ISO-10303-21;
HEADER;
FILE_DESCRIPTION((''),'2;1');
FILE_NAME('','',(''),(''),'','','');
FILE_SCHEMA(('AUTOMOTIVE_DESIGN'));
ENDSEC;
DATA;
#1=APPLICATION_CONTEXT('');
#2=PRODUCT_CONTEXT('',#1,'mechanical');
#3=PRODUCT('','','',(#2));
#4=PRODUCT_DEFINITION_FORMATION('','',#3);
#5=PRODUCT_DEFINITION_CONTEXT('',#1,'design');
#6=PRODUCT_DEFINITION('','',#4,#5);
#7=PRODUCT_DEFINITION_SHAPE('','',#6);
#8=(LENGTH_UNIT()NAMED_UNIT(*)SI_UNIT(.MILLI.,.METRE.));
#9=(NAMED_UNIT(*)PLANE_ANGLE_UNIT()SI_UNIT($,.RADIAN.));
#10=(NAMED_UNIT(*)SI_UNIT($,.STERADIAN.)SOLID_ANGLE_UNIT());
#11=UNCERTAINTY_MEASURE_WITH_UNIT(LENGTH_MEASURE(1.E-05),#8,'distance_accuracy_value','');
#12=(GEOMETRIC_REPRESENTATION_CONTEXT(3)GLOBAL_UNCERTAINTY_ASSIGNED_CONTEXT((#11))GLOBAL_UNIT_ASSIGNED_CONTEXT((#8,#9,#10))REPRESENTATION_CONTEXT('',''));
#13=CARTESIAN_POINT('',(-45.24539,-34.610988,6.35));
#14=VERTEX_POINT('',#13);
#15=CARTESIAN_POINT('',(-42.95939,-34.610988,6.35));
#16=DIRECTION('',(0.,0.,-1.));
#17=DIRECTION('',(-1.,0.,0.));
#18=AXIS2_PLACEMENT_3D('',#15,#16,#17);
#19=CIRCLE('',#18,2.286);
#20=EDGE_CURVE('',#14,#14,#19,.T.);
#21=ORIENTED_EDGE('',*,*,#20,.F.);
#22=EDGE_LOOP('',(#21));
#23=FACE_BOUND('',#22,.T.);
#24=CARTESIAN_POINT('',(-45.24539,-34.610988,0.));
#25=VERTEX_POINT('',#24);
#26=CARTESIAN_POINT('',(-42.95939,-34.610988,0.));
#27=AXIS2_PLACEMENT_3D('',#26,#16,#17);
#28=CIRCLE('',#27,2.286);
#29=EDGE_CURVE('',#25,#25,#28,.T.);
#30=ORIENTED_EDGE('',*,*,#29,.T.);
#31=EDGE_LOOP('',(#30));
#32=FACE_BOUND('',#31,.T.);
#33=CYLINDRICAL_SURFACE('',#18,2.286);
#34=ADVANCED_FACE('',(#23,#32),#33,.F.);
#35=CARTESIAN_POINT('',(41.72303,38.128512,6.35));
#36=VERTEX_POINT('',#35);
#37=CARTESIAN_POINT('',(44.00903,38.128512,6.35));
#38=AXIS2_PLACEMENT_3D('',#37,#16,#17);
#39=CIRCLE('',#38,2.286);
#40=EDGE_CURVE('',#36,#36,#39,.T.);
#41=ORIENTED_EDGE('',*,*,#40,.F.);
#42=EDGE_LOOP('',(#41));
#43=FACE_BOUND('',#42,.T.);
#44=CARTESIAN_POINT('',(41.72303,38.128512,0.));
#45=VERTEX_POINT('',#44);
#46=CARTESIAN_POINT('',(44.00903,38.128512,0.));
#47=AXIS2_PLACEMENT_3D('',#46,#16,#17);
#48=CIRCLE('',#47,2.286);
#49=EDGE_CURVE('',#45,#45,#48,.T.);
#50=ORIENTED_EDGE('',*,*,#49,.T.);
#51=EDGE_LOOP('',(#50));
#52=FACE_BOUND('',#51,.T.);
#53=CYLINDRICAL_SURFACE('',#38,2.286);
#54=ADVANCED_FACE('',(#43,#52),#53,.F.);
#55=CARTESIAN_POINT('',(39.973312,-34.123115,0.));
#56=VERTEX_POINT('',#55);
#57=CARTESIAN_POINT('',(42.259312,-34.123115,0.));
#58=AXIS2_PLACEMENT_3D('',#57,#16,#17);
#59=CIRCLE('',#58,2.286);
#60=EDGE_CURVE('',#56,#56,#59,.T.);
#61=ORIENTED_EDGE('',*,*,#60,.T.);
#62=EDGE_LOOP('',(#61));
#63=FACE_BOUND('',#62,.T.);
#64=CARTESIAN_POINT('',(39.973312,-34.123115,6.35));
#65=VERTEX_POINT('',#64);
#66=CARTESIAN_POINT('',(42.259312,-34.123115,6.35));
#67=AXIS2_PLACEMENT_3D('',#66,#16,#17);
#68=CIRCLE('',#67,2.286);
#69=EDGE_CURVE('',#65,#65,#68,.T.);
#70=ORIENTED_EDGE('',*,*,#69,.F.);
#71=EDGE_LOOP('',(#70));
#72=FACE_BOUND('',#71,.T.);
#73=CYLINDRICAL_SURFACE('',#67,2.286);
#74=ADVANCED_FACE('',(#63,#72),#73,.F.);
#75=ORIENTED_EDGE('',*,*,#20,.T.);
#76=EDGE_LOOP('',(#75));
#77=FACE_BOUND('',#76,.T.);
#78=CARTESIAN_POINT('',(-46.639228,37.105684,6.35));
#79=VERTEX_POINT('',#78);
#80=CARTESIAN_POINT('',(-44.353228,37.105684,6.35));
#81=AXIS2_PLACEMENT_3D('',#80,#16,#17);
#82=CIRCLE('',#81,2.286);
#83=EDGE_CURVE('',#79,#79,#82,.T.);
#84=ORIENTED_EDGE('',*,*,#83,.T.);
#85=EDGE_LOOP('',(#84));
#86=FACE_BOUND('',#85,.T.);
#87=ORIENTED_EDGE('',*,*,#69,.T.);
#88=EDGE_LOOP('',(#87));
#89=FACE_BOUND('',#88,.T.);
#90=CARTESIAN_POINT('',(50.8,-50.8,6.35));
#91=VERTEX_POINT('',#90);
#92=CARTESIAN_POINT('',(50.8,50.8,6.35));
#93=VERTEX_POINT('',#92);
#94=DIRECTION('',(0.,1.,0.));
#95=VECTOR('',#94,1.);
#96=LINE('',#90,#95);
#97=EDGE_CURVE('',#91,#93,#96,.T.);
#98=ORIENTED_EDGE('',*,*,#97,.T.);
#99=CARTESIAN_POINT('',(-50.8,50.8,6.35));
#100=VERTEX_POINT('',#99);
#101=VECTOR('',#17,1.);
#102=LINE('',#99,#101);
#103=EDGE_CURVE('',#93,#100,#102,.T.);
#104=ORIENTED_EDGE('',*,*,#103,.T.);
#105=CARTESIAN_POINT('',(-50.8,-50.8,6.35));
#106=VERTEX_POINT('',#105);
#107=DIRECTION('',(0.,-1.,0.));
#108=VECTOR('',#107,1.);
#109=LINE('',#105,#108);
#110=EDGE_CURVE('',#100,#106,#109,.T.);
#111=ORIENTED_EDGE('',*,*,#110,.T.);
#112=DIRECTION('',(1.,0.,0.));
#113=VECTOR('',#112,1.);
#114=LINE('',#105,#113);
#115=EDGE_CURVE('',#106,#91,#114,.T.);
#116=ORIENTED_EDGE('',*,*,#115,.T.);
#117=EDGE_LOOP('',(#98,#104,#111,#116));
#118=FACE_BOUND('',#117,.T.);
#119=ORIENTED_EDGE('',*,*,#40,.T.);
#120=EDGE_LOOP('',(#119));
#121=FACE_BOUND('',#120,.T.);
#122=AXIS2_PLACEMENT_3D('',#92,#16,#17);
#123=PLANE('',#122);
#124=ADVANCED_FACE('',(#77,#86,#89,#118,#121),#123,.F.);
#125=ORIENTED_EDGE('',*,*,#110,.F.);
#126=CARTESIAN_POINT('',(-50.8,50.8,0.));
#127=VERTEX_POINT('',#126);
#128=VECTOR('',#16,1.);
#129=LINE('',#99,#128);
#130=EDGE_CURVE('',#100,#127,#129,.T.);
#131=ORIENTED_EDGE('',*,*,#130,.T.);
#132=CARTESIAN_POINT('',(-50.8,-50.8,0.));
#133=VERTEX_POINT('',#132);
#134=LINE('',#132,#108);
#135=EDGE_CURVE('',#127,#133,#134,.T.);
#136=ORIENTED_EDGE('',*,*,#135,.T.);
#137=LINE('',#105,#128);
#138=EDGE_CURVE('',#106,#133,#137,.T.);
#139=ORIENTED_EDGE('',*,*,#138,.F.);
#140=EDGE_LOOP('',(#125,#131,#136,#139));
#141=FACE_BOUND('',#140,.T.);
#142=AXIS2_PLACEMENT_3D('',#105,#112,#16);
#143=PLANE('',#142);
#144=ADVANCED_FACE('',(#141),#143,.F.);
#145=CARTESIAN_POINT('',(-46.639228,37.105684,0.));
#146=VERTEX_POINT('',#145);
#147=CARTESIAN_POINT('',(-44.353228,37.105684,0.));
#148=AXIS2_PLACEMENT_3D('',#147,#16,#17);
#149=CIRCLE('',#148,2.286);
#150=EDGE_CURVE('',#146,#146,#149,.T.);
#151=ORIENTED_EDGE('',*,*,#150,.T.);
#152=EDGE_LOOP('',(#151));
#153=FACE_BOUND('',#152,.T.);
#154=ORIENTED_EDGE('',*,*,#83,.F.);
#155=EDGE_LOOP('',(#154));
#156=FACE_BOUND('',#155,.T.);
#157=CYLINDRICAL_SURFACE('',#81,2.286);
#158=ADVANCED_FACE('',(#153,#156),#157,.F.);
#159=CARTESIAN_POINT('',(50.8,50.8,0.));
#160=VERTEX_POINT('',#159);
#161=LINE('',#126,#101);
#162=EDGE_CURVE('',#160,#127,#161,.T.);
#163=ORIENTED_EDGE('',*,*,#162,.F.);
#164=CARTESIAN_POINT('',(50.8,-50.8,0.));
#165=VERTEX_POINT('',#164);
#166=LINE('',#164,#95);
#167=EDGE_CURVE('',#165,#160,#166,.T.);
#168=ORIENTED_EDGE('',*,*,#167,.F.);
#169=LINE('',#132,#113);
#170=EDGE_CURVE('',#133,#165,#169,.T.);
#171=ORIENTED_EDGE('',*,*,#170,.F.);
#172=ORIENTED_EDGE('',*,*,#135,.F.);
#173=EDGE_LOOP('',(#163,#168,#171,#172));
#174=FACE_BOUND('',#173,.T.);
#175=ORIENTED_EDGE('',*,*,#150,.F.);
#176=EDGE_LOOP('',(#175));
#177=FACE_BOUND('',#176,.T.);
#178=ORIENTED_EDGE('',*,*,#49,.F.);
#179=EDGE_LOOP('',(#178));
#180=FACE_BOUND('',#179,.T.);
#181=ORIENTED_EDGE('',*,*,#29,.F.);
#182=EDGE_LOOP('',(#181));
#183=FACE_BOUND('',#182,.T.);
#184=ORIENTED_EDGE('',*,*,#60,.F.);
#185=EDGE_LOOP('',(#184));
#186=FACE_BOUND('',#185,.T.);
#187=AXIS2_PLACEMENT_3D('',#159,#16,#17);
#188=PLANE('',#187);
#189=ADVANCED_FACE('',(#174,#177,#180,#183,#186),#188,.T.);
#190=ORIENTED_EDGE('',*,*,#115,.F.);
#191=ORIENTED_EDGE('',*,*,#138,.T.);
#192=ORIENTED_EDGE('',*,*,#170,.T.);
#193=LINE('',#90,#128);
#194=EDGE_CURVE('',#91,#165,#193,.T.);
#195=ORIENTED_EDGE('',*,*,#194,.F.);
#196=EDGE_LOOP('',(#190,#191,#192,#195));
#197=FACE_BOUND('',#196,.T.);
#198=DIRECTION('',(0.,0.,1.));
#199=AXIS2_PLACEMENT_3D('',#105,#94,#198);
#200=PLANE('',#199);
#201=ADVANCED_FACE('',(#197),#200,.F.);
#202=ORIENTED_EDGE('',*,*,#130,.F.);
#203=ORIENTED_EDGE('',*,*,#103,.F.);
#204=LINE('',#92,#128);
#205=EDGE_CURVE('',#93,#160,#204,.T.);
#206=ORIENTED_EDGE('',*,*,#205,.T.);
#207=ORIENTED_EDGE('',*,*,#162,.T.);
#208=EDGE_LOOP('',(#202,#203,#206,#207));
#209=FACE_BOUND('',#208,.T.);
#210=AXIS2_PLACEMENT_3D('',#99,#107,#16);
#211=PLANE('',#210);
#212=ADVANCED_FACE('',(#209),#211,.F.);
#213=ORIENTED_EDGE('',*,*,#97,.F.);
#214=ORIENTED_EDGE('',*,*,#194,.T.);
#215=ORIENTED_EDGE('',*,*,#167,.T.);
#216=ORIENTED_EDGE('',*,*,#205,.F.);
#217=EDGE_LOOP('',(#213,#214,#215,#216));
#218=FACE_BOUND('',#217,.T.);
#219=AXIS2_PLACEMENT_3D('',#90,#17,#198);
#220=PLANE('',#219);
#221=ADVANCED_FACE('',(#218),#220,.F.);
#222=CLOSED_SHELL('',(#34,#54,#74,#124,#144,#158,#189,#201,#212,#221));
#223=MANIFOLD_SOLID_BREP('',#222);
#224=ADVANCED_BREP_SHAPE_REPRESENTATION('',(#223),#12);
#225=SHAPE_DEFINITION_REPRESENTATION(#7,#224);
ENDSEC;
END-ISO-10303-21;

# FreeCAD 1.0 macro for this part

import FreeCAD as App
import Part
import Sketcher

V = App.Vector
Q = App.Units.Quantity

doc = App.newDocument("Part")
params = doc.addObject("Spreadsheet::Sheet", "Params")
for row, (alias, value) in enumerate([
    ("sketch1_width", "4 in"),
    ("pad1_length", "0.25 in"),
    ("sketch2_diameter", "0.18 in"),
], start=1):
    params.set(f"A{row}", alias)
    params.set(f"B{row}", "=" + value)
    params.setAlias(f"B{row}", alias)

body = doc.addObject("PartDesign::Body", "Body")

sketch1 = doc.addObject("Sketcher::SketchObject", "Sketch")
body.addObject(sketch1)
sketch1.AttachmentSupport = (doc.XY_Plane, [""])
sketch1.MapMode = "FlatFace"
sketch1.addGeometry([
    Part.LineSegment(V(-51, 51, 0), V(-51, -51, 0)),
    Part.LineSegment(V(-51, -51, 0), V(51, -51, 0)),
    Part.LineSegment(V(51, -51, 0), V(51, 51, 0)),
    Part.LineSegment(V(51, 51, 0), V(-51, 51, 0)),
], False)
sketch1.addConstraint([
    Sketcher.Constraint("Coincident", 0, 2, 1, 1),
    Sketcher.Constraint("Coincident", 1, 2, 2, 1),
    Sketcher.Constraint("Coincident", 2, 2, 3, 1),
    Sketcher.Constraint("Coincident", 3, 2, 0, 1),
    Sketcher.Constraint("Vertical", 0),
    Sketcher.Constraint("Horizontal", 1),
    Sketcher.Constraint("Vertical", 2),
    Sketcher.Constraint("Horizontal", 3),
    Sketcher.Constraint("Symmetric", 0, 2, 2, 2, -1, 1),
    Sketcher.Constraint("Equal", 3, 0),
    Sketcher.Constraint("DistanceX", 1, 1, 1, 2, Q("4 in")),
])
sketch1.setExpression("Constraints[10]", "Params.sketch1_width")
pad1 = doc.addObject("PartDesign::Pad", "Pad")
body.addObject(pad1)
pad1.Profile = sketch1
pad1.setExpression("Length", "Params.pad1_length")

sketch2 = doc.addObject("Sketcher::SketchObject", "Sketch001")
body.addObject(sketch2)
sketch2.AttachmentSupport = (doc.XY_Plane, [""])
sketch2.MapMode = "FlatFace"
sketch2.addGeometry([
    Part.Circle(V(42.3, -34.1, 0), V(0, 0, 1), 2.3),
    Part.Circle(V(-43, -34.6, 0), V(0, 0, 1), 2.3),
    Part.Circle(V(-44.4, 37.1, 0), V(0, 0, 1), 2.3),
    Part.Circle(V(44, 38.1, 0), V(0, 0, 1), 2.3),
], False)
sketch2.addConstraint([
    Sketcher.Constraint("Equal", 0, 1),
    Sketcher.Constraint("Equal", 1, 2),
    Sketcher.Constraint("Equal", 2, 3),
    Sketcher.Constraint("Diameter", 0, Q("0.18 in")),
    Sketcher.Constraint("DistanceY", 0, 3, 2, 3, Q("71.228798 mm")),
    Sketcher.Constraint("DistanceY", 1, 3, 3, 3, Q("72.7395 mm")),
    Sketcher.Constraint("DistanceX", 1, 3, -1, 1, Q("42.95939 mm")),
    Sketcher.Constraint("DistanceY", 1, 3, -1, 1, Q("34.610988 mm")),
    Sketcher.Constraint("DistanceX", -1, 1, 3, 3, Q("44.00903 mm")),
    Sketcher.Constraint("DistanceX", 2, 3, 0, 3, Q("86.61254 mm")),
    Sketcher.Constraint("DistanceX", 2, 3, 3, 3, Q("88.362258 mm")),
    Sketcher.Constraint("DistanceY", 2, 3, 3, 3, Q("1.022828 mm")),
])
sketch2.setExpression("Constraints[3]", "Params.sketch2_diameter")
pocket1 = doc.addObject("PartDesign::Pocket", "Pocket")
body.addObject(pocket1)
pocket1.Profile = sketch2
pocket1.Type = "ThroughAll"
pocket1.Reversed = True

doc.recompute()
